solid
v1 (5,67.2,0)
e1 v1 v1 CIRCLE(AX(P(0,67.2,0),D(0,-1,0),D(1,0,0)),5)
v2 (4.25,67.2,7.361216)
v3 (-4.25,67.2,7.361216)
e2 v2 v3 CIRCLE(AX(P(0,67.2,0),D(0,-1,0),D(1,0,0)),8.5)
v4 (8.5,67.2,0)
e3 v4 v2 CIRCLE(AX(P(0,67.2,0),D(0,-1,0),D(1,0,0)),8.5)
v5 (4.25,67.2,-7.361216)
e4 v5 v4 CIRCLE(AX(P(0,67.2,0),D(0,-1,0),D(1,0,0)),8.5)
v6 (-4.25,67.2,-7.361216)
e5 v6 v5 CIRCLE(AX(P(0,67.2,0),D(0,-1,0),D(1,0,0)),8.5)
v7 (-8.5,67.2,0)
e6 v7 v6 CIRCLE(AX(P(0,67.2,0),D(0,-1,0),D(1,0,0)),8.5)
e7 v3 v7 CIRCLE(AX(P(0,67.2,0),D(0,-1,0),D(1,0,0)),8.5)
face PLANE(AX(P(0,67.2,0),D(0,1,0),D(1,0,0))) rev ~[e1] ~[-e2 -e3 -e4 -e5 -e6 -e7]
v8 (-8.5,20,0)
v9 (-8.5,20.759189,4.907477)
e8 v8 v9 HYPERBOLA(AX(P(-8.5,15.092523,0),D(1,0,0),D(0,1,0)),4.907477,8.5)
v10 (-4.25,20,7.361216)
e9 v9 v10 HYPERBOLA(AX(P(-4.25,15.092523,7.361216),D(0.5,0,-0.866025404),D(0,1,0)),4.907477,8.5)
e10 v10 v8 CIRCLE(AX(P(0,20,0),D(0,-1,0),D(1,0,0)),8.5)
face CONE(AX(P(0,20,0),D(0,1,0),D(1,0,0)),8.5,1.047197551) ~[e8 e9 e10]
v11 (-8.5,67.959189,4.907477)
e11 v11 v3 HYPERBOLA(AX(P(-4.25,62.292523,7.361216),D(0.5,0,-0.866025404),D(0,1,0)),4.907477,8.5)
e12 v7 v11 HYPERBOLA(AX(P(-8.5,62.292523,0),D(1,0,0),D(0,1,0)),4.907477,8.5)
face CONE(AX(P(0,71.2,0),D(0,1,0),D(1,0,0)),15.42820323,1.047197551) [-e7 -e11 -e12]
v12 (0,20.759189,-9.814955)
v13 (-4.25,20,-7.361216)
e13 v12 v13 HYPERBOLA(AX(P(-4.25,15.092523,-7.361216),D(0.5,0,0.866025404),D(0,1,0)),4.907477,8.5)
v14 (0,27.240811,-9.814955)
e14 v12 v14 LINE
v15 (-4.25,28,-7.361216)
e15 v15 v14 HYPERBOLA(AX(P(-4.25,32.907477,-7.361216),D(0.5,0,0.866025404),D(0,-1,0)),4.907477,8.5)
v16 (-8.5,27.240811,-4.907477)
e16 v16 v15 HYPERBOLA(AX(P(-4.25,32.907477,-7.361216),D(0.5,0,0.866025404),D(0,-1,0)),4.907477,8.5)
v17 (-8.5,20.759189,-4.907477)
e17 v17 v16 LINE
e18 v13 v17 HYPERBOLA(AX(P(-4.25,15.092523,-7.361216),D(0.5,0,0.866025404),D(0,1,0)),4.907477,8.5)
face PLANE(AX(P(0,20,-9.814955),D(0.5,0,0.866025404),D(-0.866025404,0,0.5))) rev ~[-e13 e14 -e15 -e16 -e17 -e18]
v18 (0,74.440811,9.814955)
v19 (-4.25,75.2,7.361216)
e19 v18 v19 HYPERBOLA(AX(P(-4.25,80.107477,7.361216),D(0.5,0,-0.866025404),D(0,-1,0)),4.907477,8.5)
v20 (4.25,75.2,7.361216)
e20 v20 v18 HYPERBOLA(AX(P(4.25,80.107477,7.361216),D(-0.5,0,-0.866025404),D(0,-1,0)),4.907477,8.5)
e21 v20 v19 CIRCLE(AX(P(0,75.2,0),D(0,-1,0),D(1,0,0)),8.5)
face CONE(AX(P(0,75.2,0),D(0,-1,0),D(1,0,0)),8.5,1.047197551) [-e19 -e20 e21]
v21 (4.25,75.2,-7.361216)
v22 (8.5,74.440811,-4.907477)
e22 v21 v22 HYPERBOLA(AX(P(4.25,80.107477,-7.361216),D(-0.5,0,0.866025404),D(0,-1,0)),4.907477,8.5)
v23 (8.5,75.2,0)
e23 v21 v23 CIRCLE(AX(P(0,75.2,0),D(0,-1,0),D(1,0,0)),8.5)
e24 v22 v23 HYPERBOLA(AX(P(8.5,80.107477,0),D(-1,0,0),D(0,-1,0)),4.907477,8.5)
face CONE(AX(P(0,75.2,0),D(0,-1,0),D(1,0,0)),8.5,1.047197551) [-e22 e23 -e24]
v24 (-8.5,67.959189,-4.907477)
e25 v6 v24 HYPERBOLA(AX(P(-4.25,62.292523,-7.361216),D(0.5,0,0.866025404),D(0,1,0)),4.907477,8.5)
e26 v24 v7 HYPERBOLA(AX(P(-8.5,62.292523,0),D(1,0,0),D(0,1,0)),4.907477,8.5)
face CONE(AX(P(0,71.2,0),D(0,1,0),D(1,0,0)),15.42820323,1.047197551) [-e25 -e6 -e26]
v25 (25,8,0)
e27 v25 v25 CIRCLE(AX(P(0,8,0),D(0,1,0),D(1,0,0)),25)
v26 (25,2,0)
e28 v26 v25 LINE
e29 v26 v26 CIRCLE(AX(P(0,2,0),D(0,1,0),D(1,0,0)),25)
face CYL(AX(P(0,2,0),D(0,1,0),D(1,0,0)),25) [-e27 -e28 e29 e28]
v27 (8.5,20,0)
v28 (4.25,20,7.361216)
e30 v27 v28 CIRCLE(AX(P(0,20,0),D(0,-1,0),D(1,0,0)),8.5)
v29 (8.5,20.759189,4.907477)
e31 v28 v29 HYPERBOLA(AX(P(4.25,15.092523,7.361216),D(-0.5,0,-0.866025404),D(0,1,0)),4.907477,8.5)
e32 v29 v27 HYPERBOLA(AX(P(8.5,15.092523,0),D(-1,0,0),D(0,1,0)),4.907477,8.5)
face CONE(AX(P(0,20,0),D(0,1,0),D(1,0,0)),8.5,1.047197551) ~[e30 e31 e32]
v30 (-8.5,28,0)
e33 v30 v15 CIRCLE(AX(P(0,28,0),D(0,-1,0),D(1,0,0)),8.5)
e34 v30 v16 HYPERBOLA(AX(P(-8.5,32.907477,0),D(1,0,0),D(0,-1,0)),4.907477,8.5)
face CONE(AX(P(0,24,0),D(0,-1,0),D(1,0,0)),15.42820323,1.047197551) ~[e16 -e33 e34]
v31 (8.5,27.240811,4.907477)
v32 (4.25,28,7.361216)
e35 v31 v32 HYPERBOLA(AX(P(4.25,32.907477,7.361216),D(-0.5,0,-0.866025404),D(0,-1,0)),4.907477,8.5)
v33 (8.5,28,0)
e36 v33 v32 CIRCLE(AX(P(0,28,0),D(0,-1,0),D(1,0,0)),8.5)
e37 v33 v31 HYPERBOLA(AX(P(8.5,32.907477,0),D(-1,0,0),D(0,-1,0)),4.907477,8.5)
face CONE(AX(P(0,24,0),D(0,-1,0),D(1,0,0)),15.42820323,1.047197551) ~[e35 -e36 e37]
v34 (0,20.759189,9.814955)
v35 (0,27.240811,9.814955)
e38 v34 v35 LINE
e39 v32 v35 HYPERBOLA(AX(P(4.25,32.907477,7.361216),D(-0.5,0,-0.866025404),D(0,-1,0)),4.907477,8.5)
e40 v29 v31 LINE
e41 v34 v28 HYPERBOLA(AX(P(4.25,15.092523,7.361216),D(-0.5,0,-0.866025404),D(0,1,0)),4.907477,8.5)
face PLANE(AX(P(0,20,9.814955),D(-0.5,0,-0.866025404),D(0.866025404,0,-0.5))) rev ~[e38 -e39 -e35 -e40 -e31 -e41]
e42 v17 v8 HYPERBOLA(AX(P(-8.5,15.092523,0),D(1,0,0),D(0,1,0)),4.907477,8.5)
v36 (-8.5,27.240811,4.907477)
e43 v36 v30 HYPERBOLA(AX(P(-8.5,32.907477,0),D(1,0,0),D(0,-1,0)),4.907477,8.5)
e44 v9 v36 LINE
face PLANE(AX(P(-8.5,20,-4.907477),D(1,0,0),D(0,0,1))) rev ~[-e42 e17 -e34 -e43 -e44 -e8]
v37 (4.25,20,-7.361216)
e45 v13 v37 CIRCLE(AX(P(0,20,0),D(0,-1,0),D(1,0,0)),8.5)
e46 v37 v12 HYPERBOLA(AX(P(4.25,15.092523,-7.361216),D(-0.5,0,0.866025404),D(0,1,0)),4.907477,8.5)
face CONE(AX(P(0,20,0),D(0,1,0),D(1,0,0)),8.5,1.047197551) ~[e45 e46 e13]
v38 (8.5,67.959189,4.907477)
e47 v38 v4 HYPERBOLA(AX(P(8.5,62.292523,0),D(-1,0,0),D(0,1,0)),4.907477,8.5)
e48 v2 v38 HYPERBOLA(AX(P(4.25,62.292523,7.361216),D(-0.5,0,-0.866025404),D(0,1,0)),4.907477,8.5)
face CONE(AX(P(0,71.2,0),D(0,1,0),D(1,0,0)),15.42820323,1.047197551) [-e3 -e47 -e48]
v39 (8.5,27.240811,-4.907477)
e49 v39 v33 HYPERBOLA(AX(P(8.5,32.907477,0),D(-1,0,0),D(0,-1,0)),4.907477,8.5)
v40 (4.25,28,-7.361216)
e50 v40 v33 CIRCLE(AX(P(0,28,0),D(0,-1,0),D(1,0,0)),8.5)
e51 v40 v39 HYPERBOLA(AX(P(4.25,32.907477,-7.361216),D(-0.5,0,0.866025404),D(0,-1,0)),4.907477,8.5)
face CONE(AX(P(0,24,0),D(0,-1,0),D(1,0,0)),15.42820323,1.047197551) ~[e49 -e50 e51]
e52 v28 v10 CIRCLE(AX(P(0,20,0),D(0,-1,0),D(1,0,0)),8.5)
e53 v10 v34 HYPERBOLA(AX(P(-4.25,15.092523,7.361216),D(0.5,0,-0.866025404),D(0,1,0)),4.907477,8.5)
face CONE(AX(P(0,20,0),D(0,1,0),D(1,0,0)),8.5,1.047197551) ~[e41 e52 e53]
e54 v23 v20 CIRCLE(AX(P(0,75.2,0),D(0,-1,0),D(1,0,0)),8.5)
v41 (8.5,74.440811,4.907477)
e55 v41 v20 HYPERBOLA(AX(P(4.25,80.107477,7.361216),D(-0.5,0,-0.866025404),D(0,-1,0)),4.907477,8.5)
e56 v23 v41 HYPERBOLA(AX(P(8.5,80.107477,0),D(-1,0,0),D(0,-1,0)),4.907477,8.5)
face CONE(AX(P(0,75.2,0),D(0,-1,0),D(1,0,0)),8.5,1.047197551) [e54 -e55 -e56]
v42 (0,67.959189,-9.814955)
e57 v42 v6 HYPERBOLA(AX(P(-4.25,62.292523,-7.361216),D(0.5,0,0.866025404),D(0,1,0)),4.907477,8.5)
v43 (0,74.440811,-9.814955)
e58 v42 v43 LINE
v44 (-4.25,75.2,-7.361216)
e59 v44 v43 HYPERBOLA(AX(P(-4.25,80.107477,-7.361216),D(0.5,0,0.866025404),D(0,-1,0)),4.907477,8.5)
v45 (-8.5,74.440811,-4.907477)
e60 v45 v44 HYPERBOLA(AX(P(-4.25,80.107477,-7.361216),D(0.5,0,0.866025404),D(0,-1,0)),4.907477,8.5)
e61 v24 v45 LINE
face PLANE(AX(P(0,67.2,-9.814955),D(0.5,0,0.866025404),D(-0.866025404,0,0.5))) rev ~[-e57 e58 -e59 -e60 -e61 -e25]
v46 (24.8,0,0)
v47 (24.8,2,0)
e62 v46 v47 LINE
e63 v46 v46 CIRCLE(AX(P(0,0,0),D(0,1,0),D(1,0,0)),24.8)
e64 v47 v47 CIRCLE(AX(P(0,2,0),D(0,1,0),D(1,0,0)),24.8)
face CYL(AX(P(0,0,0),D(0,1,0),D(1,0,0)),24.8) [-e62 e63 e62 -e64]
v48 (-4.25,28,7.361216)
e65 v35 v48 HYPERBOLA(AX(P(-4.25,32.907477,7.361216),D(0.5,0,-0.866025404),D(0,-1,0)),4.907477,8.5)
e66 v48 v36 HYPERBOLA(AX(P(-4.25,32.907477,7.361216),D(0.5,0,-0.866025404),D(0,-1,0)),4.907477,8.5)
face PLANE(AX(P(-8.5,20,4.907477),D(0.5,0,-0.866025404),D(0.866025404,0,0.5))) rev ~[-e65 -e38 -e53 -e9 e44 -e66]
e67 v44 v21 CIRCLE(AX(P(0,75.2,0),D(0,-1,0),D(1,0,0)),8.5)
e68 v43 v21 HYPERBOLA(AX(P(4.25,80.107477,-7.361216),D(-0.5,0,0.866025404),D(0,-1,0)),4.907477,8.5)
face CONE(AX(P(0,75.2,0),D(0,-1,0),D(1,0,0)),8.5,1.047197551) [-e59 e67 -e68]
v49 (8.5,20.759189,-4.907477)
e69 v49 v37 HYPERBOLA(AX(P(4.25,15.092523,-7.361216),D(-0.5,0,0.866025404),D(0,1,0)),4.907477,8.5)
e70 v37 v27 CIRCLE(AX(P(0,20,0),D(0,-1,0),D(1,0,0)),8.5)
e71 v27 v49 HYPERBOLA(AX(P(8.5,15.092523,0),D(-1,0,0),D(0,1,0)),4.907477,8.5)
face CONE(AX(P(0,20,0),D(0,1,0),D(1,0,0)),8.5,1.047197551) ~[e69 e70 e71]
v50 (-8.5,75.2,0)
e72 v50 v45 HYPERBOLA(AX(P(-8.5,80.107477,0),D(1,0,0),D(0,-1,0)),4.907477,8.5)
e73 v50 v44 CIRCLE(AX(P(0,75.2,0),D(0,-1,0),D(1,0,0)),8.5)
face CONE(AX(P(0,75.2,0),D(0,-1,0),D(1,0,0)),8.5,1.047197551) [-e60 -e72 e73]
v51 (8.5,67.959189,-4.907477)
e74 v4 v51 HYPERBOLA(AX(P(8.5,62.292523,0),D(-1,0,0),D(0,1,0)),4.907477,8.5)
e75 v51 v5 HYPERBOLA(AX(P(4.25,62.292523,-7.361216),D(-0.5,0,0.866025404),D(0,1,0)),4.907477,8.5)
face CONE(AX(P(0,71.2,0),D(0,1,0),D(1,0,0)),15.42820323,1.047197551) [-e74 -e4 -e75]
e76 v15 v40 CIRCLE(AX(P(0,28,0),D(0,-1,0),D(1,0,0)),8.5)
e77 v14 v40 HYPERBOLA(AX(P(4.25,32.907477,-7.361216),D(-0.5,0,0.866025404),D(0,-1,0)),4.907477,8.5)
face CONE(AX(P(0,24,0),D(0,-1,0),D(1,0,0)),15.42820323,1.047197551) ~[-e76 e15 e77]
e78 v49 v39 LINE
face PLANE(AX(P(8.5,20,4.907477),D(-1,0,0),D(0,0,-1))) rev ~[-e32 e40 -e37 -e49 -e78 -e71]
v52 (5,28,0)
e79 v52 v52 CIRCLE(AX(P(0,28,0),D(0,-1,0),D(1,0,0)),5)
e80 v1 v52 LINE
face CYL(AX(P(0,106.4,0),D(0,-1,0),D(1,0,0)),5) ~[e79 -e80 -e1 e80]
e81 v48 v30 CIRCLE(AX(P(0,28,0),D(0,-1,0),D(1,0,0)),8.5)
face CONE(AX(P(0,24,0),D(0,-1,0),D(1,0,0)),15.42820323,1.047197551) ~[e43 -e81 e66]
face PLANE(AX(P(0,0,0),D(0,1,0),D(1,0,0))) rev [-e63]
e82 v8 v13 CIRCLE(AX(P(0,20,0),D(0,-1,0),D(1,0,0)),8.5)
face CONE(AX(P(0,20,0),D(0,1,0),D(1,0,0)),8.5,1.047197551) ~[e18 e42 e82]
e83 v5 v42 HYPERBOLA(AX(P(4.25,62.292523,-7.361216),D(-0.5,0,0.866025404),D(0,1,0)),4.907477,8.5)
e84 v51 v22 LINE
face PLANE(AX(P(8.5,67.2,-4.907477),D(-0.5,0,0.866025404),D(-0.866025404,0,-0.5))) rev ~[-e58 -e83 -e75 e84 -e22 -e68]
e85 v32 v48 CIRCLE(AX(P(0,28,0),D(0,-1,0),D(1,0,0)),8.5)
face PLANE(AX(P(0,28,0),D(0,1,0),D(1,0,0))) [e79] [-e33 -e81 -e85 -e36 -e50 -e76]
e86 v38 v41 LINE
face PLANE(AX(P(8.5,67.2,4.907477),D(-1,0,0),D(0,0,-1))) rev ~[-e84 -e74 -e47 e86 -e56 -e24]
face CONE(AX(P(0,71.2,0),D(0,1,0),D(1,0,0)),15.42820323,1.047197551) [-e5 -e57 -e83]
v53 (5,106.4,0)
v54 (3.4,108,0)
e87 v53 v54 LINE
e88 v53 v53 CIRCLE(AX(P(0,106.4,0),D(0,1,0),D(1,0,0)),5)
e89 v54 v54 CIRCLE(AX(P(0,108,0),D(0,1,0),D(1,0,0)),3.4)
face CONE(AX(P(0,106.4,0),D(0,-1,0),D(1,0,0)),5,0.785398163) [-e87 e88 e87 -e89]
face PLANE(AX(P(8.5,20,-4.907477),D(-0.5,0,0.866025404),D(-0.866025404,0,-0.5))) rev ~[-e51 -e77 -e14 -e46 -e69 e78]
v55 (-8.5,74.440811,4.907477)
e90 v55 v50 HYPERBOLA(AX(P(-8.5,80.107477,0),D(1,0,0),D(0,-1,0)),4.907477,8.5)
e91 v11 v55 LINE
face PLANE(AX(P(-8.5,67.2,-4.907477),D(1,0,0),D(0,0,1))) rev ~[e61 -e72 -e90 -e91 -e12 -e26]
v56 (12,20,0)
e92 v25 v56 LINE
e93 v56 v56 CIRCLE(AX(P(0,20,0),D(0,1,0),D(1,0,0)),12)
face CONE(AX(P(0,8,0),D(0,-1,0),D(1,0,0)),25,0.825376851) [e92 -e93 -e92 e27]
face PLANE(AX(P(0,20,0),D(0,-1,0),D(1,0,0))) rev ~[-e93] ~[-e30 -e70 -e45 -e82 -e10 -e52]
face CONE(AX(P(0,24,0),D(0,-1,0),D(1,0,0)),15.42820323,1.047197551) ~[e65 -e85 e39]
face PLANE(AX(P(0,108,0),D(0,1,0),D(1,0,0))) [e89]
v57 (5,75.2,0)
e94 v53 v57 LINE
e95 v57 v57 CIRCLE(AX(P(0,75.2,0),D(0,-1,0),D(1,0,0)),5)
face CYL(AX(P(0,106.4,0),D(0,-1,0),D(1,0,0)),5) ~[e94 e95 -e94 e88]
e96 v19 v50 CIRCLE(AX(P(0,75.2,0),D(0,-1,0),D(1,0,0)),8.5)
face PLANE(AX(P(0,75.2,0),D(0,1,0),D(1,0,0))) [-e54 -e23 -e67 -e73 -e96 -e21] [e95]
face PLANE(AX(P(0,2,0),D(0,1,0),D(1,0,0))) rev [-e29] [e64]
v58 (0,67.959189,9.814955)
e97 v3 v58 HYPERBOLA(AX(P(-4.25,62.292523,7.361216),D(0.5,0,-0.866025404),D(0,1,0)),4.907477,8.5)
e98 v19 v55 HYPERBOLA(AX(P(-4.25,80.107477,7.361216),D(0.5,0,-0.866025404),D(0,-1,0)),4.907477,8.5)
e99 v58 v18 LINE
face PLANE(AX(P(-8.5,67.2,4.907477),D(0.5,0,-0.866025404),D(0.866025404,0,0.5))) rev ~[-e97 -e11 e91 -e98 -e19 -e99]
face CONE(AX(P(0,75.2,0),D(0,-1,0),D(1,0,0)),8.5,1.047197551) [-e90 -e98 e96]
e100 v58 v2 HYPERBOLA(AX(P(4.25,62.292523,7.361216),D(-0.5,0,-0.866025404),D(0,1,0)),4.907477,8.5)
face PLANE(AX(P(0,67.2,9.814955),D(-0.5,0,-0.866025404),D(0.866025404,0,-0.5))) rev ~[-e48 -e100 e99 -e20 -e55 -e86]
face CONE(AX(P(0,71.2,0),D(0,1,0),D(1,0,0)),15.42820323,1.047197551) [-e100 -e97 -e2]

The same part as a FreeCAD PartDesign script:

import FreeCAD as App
import Part
import Sketcher
Q = App.Units.Quantity


def add_polygon(sketch, points):
    """Adds a closed chain of lines whose ends are joined by coincident constraints."""
    first, n = sketch.GeometryCount, len(points)
    for a, b in zip(points, points[1:] + points[:1]):
        sketch.addGeometry(Part.LineSegment(App.Vector(*a, 0), App.Vector(*b, 0)), False)
    for i in range(n):
        sketch.addConstraint(Sketcher.Constraint("Coincident", first + i, 2, first + (i + 1) % n, 1))

doc = App.newDocument("Part")
body = doc.addObject("PartDesign::Body", "Body")

# Sketch on XY plane
sketch1 = doc.addObject("Sketcher::SketchObject", "Sketch")
body.addObject(sketch1)
sketch1.AttachmentSupport = (doc.XY_Plane, [""])
sketch1.MapMode = "FlatFace"
add_polygon(sketch1, [(-24.8, 0), (0, 0), (0, 108), (-3.4, 108), (-5, 106.4), (-5, 20), (-12, 20), (-25, 8), (-25, 2), (-24.8, 2)])  # lines 0-9
sketch1.addConstraint([
    Sketcher.Constraint("Horizontal", 0),
    Sketcher.Constraint("Vertical", 1),
    Sketcher.Constraint("Horizontal", 2),
    Sketcher.Constraint("Vertical", 4),
    Sketcher.Constraint("Horizontal", 5),
    Sketcher.Constraint("Vertical", 7),
    Sketcher.Constraint("Horizontal", 8),
    Sketcher.Constraint("Vertical", 9),
    Sketcher.Constraint("Coincident", 0, 2, -1, 1),
    Sketcher.Constraint("DistanceX", 5, 2, 5, 1, Q("7 mm")),
    Sketcher.Constraint("DistanceY", 1, 1, 1, 2, Q("108 mm")),
    Sketcher.Constraint("DistanceY", 7, 2, 7, 1, Q("6 mm")),
    Sketcher.Constraint("DistanceY", 9, 2, 9, 1, Q("2 mm")),
    Sketcher.Constraint("Angle", 3, Q("-135 deg")),
    Sketcher.Constraint("DistanceX", 0, 1, 0, 2, Q("24.8 mm")),
    Sketcher.Constraint("DistanceX", 2, 2, 2, 1, Q("3.4 mm")),
    Sketcher.Constraint("DistanceX", 8, 1, 8, 2, Q("0.2 mm")),
    Sketcher.Constraint("DistanceY", 4, 2, 4, 1, Q("86.4 mm")),
    Sketcher.Constraint("DistanceX", 3, 2, -1, 1, Q("5 mm")),
])
revolution = doc.addObject("PartDesign::Revolution", "Revolution")
body.addObject(revolution)
revolution.Profile = sketch1
revolution.ReferenceAxis = (sketch1, ["V_Axis"])
revolution.Angle = 360

# Sketch on XZ plane
sketch2 = doc.addObject("Sketcher::SketchObject", "Sketch001")
body.addObject(sketch2)
sketch2.AttachmentSupport = (doc.XZ_Plane, [""])
sketch2.MapMode = "FlatFace"
sketch2.AttachmentOffset = App.Placement(App.Vector(0, 0, -20), App.Rotation())
add_polygon(sketch2, [(0, -10), (-8, -5), (-8, 5), (0, 10), (8, 5), (8, -5)])  # lines 0-5
sketch2.addConstraint([
    Sketcher.Constraint("Vertical", 1),
    Sketcher.Constraint("Vertical", 4),
    Sketcher.Constraint("Symmetric", 0, 2, 3, 2, -1, 1),
    Sketcher.Constraint("Symmetric", 2, 2, 5, 2, -1, 1),
    Sketcher.Constraint("PointOnObject", 2, 2, -2),
    Sketcher.Constraint("Parallel", 2, 5),
    Sketcher.Constraint("Horizontal", 1, 2, 3, 2),
    Sketcher.Constraint("Angle", 0, Q("150 deg")),
    Sketcher.Constraint("DistanceX", 1, 2, 3, 2, Q("17 mm")),
    Sketcher.Constraint("DistanceY", 1, 1, 1, 2, Q("9.814955 mm")),
])
pad1 = doc.addObject("PartDesign::Pad", "Pad")
body.addObject(pad1)
pad1.Profile = sketch2
pad1.Length = 8
pad1.Reversed = True

# Sketch on XZ plane
sketch3 = doc.addObject("Sketcher::SketchObject", "Sketch002")
body.addObject(sketch3)
sketch3.AttachmentSupport = (doc.XZ_Plane, [""])
sketch3.MapMode = "FlatFace"
sketch3.AttachmentOffset = App.Placement(App.Vector(0, 0, -67.2), App.Rotation())
add_polygon(sketch3, [(8, -5), (0, -10), (-8, -5), (-8, 5), (0, 10), (8, 5)])  # lines 0-5
sketch3.addConstraint([
    Sketcher.Constraint("Vertical", 2),
    Sketcher.Constraint("Vertical", 5),
    Sketcher.Constraint("Symmetric", 0, 2, 3, 2, -1, 1),
    Sketcher.Constraint("Symmetric", 1, 2, 4, 2, -1, 1),
    Sketcher.Constraint("PointOnObject", 0, 2, -2),
    Sketcher.Constraint("Parallel", 0, 3),
    Sketcher.Constraint("Horizontal", 2, 2, 4, 2),
    Sketcher.Constraint("Angle", 0, Q("-150 deg")),
    Sketcher.Constraint("DistanceX", 2, 2, 4, 2, Q("17 mm")),
    Sketcher.Constraint("DistanceY", 2, 1, 2, 2, Q("9.814955 mm")),
])
pad2 = doc.addObject("PartDesign::Pad", "Pad001")
body.addObject(pad2)
pad2.Profile = sketch3
pad2.Length = 8
pad2.Reversed = True

# Sketch on XY plane
sketch4 = doc.addObject("Sketcher::SketchObject", "Sketch003")
body.addObject(sketch4)
sketch4.AttachmentSupport = (doc.XY_Plane, [""])
sketch4.MapMode = "FlatFace"
add_polygon(sketch4, [(-8.5, 75.2), (-15.4, 75.2), (-15.4, 71.2)])  # lines 0-2
add_polygon(sketch4, [(-15.4, 71.2), (-15.4, 67.2), (-8.5, 67.2)])  # lines 3-5
add_polygon(sketch4, [(-15.4, 28), (-15.4, 24), (-8.5, 28)])  # lines 6-8
add_polygon(sketch4, [(-15.4, 24), (-15.4, 20), (-8.5, 20)])  # lines 9-11
sketch4.addConstraint([
    Sketcher.Constraint("Horizontal", 0),
    Sketcher.Constraint("Vertical", 1),
    Sketcher.Constraint("Vertical", 3),
    Sketcher.Constraint("Horizontal", 4),
    Sketcher.Constraint("Vertical", 6),
    Sketcher.Constraint("Horizontal", 8),
    Sketcher.Constraint("Vertical", 9),
    Sketcher.Constraint("Horizontal", 10),
    Sketcher.Constraint("Coincident", 5, 2, 1, 2),
    Sketcher.Constraint("Coincident", 11, 2, 6, 2),
    Sketcher.Constraint("Parallel", 2, 7),
    Sketcher.Constraint("Parallel", 5, 11),
    Sketcher.Constraint("Vertical", 2, 2, 4, 2),
    Sketcher.Constraint("Vertical", 5, 2, 6, 2),
    Sketcher.Constraint("Vertical", 4, 2, 7, 2),
    Sketcher.Constraint("Vertical", 7, 2, 10, 2),
    Sketcher.Constraint("Equal", 1, 3),
    Sketcher.Constraint("DistanceY", 1, 2, 1, 1, Q("4 mm")),
    Sketcher.Constraint("Angle", 2, Q("30 deg")),
    Sketcher.Constraint("DistanceY", -1, 1, 6, 2, Q("24 mm")),
    Sketcher.Constraint("DistanceY", -1, 1, 0, 2, Q("75.2 mm")),
    Sketcher.Constraint("DistanceX", 2, 2, -1, 1, Q("8.5 mm")),
])
groove = doc.addObject("PartDesign::Groove", "Groove")
body.addObject(groove)
groove.Profile = sketch4
groove.ReferenceAxis = (sketch4, ["V_Axis"])
groove.Angle = 360

doc.recompute()
